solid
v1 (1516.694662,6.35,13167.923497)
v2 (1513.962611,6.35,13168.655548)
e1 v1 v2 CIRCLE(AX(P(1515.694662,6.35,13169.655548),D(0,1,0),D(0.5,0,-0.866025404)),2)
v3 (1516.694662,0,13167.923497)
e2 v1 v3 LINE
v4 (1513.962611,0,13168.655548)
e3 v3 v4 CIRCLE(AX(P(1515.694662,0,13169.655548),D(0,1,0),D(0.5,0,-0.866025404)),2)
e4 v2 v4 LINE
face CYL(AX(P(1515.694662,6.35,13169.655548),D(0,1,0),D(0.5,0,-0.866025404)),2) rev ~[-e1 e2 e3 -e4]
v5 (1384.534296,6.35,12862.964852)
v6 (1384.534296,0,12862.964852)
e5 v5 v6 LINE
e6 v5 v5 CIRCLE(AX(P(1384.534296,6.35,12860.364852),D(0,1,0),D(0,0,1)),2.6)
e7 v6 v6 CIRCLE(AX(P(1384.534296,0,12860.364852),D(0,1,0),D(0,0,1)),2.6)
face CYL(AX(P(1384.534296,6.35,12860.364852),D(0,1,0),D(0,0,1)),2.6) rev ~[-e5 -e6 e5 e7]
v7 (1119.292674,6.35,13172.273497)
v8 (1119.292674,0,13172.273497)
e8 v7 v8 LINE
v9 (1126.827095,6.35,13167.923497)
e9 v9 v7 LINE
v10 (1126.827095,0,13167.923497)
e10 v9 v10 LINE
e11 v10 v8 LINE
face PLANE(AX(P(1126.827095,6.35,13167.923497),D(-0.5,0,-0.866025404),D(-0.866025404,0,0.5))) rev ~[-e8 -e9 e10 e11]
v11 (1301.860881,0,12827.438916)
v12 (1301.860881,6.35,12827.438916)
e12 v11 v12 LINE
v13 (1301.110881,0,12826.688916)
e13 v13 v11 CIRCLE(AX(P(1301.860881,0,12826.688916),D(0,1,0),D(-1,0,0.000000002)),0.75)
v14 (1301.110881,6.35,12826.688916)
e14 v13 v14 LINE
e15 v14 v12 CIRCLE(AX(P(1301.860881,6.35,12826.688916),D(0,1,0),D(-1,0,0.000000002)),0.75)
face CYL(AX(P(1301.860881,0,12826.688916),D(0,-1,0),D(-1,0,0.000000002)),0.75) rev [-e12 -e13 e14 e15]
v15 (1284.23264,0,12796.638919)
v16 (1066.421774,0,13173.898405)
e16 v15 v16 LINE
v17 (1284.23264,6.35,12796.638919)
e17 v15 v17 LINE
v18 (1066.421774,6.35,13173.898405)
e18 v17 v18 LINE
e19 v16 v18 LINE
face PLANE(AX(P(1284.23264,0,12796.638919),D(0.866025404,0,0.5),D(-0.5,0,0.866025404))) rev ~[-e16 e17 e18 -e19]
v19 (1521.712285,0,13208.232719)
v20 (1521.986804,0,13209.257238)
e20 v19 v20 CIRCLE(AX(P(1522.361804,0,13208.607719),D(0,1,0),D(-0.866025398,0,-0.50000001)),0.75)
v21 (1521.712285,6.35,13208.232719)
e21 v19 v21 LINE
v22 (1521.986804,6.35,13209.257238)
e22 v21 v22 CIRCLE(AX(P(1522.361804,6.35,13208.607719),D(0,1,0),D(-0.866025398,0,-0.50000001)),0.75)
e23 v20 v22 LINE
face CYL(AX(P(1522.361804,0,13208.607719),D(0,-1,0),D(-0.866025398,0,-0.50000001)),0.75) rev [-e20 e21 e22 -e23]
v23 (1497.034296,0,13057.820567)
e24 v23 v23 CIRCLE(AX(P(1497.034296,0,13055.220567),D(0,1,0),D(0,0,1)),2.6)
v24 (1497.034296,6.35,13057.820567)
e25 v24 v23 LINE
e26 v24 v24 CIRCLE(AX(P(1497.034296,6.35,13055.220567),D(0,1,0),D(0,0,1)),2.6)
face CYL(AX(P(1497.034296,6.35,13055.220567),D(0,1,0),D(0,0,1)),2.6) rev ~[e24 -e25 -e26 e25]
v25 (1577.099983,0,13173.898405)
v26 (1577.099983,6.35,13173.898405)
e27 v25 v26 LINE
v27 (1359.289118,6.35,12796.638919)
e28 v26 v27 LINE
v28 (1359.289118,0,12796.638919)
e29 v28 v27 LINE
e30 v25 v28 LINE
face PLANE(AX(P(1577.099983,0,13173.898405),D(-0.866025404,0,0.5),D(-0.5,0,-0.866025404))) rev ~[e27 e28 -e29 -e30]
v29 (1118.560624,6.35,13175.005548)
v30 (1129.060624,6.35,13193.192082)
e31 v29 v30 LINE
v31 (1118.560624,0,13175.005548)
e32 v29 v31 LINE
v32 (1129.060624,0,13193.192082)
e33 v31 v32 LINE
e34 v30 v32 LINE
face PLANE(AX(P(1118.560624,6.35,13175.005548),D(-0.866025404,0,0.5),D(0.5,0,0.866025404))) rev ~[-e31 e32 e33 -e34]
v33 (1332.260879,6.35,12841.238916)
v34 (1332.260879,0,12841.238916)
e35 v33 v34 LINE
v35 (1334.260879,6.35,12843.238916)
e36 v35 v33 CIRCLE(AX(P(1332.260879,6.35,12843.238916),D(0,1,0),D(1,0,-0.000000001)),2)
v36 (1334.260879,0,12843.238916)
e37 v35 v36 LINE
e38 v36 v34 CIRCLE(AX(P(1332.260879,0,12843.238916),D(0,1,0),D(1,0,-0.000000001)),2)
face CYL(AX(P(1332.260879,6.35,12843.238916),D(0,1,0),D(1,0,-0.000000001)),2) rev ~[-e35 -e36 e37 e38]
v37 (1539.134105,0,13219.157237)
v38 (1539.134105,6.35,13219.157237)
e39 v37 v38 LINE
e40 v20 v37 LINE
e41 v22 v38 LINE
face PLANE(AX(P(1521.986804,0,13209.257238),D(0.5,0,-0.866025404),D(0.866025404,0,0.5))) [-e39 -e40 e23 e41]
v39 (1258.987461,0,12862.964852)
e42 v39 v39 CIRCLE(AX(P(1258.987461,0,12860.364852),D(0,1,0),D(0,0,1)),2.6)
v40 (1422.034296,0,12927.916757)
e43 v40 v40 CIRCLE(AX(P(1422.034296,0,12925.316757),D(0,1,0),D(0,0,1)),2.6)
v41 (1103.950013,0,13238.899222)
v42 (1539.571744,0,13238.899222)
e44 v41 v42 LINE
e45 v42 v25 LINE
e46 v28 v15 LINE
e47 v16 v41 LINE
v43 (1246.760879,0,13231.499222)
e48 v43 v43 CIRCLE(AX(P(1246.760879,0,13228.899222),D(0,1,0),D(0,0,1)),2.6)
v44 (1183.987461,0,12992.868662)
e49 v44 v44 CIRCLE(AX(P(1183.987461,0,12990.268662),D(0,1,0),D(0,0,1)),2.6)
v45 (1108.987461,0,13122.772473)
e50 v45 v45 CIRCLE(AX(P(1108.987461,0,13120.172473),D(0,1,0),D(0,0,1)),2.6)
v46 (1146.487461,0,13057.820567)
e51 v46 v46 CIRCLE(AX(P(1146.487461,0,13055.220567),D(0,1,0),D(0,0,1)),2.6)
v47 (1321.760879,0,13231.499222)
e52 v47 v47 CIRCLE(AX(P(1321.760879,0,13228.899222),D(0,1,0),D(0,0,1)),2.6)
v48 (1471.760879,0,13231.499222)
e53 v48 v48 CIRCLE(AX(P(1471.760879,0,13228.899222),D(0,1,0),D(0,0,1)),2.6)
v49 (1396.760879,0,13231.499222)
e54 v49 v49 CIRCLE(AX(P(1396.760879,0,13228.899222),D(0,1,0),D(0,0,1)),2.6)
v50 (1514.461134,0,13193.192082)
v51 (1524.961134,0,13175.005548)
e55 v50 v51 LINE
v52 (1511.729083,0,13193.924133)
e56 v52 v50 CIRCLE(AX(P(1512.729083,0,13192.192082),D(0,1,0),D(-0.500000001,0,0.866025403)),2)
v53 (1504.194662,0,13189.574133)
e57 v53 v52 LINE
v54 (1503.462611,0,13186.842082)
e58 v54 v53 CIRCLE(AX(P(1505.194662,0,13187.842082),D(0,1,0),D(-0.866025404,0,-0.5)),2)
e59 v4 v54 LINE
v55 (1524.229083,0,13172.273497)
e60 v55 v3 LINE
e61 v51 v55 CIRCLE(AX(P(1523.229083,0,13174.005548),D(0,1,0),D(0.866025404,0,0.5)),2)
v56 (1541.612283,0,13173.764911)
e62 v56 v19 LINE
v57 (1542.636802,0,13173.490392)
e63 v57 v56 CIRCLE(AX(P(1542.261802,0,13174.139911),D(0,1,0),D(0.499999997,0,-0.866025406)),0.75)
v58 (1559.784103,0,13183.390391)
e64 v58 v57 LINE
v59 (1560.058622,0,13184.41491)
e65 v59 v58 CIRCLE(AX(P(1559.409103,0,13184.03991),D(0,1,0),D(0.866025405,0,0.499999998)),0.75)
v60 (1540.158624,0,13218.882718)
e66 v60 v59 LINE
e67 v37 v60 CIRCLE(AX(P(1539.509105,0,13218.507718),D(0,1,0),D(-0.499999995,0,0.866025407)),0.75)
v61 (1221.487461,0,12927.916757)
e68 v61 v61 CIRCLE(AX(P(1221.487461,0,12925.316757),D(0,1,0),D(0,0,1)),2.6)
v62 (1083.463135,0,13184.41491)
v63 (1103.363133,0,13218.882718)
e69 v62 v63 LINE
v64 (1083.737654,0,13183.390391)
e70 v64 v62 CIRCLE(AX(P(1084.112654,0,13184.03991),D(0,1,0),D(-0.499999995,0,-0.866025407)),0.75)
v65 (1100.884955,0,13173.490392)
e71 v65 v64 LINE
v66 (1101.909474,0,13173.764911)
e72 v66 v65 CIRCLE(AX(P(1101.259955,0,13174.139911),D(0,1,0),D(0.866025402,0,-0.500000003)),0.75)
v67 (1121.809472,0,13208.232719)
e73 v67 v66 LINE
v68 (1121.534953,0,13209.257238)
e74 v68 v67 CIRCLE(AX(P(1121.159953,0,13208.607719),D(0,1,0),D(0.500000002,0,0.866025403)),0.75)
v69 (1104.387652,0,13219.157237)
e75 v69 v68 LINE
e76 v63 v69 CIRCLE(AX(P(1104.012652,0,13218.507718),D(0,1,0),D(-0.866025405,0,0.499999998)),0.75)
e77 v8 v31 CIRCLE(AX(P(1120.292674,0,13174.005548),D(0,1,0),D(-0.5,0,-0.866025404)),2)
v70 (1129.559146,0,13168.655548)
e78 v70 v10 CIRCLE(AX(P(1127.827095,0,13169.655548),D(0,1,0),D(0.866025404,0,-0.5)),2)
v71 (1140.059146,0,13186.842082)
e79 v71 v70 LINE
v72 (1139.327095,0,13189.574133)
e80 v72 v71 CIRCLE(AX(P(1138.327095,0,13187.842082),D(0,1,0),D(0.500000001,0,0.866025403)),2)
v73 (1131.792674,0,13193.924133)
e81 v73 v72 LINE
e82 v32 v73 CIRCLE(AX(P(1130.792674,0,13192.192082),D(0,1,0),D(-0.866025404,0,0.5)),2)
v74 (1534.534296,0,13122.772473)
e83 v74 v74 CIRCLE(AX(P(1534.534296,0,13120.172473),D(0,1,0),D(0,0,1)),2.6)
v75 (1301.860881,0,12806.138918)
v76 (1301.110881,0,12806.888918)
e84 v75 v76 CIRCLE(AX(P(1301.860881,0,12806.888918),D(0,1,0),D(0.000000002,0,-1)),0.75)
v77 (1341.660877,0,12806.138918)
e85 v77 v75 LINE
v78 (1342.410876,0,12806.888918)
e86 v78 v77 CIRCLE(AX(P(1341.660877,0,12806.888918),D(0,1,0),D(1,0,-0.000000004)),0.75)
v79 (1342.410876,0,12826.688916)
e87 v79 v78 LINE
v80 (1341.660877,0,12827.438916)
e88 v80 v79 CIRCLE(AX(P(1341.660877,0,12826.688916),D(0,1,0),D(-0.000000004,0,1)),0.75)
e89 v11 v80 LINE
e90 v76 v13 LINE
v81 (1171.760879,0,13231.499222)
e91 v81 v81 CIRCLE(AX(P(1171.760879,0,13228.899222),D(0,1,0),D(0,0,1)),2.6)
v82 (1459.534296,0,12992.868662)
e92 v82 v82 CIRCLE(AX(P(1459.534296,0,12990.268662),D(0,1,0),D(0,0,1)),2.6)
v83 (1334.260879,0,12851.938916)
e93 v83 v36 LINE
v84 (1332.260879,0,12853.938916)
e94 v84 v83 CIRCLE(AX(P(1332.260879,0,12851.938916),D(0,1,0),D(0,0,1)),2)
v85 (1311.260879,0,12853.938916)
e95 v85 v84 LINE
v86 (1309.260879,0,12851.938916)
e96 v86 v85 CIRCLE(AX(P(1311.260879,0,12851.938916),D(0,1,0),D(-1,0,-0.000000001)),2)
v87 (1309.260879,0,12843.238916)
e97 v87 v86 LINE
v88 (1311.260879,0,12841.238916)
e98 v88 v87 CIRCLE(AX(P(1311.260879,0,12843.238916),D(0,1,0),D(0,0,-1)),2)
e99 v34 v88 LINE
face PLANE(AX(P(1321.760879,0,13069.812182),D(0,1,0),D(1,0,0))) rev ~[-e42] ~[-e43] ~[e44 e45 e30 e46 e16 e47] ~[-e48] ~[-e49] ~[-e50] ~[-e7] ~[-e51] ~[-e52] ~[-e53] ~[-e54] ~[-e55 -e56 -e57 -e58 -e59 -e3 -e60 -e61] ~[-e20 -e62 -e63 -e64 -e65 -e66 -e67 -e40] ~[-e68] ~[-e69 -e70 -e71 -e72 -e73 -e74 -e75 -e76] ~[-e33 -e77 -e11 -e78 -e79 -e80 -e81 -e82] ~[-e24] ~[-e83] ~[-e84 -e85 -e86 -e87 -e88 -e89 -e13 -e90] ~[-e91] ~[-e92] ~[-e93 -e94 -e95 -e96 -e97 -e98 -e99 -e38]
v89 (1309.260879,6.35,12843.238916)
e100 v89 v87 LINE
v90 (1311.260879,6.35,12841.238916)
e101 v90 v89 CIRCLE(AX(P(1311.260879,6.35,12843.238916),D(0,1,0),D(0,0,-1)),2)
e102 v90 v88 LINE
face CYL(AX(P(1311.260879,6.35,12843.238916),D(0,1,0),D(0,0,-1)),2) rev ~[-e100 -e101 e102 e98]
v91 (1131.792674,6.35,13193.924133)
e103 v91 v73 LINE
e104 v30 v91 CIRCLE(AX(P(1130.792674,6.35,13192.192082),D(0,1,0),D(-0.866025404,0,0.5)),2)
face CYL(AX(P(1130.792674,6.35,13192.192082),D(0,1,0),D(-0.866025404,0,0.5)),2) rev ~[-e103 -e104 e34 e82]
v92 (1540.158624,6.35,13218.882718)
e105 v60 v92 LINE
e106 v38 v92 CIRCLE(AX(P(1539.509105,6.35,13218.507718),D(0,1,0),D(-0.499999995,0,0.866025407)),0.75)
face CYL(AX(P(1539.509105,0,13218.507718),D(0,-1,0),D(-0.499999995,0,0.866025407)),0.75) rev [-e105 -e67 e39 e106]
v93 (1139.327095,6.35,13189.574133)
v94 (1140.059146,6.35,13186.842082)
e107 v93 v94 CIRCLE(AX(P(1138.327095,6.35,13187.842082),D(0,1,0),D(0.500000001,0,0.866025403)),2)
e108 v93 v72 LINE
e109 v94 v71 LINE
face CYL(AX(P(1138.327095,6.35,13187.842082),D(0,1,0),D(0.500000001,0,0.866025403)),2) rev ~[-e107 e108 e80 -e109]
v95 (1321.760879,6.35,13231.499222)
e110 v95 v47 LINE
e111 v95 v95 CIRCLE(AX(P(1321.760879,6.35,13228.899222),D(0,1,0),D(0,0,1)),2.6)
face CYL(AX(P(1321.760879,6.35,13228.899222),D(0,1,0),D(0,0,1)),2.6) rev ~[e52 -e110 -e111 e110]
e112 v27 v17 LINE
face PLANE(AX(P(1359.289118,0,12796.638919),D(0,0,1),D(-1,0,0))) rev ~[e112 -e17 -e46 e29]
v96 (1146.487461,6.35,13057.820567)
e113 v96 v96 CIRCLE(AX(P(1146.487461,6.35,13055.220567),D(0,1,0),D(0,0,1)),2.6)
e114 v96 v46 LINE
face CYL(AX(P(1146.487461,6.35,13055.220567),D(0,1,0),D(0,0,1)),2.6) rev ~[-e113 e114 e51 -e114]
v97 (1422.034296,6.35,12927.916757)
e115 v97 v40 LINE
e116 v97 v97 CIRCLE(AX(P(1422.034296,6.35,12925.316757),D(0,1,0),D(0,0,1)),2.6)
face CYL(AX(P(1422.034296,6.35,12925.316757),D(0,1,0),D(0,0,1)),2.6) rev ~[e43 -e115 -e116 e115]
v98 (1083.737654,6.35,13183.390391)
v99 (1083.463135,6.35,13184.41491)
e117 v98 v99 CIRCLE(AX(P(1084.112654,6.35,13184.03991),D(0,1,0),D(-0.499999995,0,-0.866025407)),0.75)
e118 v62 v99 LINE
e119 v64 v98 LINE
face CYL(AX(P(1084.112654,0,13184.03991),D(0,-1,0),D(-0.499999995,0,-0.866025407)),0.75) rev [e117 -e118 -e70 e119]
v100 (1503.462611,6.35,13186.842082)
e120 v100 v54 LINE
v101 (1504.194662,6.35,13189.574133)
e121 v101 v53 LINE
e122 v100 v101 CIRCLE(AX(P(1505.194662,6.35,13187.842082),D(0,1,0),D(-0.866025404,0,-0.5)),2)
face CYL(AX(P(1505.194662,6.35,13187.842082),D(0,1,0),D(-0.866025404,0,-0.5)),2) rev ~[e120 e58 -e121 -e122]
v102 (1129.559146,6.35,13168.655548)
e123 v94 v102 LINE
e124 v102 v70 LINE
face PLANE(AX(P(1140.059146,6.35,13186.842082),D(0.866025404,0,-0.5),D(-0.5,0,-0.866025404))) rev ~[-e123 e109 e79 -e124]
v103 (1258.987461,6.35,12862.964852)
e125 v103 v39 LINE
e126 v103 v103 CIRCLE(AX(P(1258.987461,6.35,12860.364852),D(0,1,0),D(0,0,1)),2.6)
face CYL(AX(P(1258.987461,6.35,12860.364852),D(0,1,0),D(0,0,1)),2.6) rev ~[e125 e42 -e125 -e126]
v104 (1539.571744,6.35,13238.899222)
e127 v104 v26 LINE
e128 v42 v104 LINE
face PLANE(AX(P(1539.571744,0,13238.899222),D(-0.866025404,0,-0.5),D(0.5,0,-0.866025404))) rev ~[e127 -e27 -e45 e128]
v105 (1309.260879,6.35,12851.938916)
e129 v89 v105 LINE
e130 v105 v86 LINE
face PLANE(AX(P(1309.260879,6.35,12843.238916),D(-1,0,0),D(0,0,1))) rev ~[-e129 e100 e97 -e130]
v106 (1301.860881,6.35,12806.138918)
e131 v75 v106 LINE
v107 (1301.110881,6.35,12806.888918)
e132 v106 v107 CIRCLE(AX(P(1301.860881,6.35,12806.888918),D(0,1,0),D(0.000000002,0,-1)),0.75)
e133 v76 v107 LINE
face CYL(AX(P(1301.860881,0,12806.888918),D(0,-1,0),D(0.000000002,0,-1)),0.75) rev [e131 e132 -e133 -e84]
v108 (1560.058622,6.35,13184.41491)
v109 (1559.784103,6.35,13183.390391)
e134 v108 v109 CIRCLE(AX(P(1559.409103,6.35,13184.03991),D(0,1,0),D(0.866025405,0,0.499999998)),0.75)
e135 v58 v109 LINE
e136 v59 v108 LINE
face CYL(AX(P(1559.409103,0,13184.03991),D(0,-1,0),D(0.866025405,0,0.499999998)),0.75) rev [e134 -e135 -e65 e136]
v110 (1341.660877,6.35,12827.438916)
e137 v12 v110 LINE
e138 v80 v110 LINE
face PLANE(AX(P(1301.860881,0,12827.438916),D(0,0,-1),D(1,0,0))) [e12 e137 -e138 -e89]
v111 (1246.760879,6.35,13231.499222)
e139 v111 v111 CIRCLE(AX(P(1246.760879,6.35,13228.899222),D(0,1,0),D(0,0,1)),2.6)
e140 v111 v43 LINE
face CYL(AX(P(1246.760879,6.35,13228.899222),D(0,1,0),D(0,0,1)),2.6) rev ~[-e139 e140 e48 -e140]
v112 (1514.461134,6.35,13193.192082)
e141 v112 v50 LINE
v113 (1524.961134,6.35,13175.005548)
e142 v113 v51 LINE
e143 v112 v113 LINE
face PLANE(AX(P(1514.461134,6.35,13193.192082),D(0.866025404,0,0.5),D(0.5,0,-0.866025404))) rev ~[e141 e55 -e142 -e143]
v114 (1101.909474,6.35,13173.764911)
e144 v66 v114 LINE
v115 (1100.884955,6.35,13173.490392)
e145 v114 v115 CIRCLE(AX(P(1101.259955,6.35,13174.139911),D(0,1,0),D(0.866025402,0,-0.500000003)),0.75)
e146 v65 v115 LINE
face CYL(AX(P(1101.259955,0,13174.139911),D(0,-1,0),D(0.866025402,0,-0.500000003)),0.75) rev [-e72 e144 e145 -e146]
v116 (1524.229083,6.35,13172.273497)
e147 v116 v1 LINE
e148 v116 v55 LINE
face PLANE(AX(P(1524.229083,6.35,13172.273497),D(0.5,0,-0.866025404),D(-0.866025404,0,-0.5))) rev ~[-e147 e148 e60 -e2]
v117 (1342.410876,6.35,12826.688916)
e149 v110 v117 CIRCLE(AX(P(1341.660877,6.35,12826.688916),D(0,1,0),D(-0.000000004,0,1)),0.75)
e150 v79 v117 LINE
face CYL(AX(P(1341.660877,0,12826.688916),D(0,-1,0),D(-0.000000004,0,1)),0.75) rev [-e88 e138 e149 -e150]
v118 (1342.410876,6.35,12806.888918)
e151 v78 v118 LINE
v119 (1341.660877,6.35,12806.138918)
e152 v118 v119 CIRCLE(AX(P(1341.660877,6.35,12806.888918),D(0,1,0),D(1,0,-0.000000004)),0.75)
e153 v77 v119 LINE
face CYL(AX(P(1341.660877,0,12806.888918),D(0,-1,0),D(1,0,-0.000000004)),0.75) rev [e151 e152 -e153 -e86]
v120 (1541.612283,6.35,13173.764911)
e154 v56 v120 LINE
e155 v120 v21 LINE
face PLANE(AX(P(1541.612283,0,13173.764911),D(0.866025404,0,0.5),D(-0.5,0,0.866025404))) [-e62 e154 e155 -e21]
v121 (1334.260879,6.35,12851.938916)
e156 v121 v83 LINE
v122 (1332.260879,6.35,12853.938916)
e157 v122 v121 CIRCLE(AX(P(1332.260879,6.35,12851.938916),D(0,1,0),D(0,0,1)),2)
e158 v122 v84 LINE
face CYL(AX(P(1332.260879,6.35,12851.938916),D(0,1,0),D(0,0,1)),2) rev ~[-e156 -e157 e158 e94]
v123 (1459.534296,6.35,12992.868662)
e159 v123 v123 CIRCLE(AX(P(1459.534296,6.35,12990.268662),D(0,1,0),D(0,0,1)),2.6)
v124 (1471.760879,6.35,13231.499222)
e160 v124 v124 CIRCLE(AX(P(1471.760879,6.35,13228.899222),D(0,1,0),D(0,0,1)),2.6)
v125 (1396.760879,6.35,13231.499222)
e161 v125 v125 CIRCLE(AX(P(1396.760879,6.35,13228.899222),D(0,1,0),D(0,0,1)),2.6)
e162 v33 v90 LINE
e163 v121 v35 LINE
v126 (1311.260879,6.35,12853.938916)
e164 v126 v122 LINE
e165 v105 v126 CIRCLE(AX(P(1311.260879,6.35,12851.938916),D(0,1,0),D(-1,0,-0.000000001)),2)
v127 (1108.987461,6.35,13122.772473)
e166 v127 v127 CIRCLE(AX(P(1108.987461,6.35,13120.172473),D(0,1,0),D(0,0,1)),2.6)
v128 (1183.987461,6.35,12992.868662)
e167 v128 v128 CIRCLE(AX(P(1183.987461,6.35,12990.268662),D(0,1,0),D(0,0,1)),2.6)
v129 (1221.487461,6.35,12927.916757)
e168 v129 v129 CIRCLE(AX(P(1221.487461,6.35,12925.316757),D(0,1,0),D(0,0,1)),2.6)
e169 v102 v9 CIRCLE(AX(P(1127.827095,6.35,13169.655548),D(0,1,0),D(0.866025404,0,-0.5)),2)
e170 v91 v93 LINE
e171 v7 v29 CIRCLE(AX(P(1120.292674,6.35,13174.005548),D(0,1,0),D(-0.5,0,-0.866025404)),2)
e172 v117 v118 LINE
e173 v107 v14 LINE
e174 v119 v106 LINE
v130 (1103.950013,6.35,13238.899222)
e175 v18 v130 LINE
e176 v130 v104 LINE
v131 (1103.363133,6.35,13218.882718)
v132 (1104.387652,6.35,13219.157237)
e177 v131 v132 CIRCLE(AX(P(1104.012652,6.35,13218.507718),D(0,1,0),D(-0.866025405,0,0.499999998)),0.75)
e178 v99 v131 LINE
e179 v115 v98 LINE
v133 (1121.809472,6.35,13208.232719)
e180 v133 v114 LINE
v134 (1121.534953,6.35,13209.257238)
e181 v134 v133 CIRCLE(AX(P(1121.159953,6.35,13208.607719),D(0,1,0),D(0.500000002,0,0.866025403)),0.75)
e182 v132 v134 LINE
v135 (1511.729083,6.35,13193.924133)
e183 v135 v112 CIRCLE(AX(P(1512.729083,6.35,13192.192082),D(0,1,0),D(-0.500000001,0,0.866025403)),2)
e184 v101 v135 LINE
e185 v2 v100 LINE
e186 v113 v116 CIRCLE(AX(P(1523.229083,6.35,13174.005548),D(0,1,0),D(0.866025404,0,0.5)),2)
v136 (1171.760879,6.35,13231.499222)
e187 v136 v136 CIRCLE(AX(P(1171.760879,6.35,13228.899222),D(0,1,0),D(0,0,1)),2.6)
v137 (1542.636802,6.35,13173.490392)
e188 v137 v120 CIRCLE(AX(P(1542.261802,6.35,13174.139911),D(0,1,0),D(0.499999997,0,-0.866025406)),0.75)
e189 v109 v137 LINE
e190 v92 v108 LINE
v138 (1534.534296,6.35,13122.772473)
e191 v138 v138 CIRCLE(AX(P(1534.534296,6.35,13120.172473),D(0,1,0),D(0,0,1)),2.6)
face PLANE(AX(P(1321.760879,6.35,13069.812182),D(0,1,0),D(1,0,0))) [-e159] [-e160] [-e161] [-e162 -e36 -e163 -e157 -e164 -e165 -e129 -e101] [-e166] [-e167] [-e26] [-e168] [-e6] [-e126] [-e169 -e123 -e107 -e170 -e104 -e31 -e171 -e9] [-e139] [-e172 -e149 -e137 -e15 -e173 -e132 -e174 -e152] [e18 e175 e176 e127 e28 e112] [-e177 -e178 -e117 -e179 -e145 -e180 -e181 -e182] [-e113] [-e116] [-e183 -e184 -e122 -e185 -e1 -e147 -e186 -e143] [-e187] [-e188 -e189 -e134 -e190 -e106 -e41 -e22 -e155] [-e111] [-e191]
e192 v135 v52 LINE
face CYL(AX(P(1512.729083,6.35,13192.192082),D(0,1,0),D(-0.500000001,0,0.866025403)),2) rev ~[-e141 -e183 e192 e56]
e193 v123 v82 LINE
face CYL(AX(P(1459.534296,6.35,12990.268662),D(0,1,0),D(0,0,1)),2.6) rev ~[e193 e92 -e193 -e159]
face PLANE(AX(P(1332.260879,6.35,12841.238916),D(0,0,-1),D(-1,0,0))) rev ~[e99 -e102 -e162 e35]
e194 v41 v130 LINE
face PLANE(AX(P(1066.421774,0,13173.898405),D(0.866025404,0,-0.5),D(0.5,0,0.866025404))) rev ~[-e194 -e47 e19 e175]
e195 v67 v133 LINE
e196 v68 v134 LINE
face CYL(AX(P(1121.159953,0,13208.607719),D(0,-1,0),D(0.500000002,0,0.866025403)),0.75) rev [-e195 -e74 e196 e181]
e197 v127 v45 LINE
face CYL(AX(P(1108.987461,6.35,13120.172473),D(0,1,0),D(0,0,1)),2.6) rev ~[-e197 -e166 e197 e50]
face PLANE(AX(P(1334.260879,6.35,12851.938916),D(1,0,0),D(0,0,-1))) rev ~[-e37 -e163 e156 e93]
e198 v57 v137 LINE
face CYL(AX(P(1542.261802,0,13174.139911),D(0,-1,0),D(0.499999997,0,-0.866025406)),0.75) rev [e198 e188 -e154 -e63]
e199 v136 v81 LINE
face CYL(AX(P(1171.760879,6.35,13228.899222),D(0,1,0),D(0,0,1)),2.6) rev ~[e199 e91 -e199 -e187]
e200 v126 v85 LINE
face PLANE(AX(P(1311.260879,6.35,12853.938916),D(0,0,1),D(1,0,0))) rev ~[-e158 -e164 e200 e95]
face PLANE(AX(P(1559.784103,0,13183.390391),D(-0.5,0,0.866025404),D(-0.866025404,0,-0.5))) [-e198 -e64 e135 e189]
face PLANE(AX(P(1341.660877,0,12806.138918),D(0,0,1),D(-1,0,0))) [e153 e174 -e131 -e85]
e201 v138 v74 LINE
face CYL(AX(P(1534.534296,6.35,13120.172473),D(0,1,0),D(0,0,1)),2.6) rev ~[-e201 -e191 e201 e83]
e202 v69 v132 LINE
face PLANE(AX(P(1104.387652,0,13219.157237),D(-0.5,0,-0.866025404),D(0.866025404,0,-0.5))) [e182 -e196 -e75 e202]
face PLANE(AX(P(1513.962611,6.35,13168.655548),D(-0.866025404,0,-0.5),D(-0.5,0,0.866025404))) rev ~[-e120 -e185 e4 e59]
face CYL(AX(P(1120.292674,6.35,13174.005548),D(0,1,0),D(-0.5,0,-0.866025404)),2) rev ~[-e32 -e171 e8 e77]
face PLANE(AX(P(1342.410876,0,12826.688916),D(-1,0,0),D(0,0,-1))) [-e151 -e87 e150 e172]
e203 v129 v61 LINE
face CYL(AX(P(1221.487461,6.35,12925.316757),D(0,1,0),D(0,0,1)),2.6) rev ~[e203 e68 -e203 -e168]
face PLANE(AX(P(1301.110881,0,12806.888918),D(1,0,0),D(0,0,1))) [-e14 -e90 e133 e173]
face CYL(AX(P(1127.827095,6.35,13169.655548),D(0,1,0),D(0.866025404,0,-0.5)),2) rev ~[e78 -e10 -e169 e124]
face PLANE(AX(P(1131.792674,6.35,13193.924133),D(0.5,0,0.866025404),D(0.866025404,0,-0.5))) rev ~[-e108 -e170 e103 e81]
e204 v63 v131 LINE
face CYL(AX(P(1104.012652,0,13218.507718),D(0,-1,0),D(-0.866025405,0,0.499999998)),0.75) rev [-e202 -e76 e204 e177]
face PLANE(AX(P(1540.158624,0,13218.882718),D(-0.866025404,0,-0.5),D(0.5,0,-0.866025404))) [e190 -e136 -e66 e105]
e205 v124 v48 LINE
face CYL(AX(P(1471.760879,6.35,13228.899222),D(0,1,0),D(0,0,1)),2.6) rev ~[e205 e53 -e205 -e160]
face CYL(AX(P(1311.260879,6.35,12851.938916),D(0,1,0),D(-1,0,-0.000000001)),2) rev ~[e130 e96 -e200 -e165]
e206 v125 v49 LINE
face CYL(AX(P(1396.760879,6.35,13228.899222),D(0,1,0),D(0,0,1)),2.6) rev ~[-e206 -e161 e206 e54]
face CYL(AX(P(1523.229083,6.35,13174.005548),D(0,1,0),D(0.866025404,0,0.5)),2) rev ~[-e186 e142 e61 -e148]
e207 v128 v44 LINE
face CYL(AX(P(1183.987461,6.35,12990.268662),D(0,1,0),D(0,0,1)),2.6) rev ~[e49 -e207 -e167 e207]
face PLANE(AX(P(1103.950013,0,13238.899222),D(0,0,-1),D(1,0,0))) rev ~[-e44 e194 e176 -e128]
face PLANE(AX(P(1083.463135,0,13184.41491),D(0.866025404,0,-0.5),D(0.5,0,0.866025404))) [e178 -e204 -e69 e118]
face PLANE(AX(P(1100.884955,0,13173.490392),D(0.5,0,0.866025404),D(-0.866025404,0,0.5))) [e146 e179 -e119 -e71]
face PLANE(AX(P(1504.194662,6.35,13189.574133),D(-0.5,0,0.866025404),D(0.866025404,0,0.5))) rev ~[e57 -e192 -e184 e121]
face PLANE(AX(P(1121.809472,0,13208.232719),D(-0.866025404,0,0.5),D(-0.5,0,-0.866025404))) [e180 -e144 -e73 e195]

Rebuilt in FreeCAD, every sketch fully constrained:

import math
import FreeCAD as App
import Part
import Sketcher
from FreeCAD import Vector
Q = App.Units.Quantity


def add_polygon(sketch, points):
    """Adds a closed chain of lines whose ends are joined by coincident constraints."""
    first, n = sketch.GeometryCount, len(points)
    for a, b in zip(points, points[1:] + points[:1]):
        sketch.addGeometry(Part.LineSegment(App.Vector(*a, 0), App.Vector(*b, 0)), False)
    for i in range(n):
        sketch.addConstraint(Sketcher.Constraint("Coincident", first + i, 2, first + (i + 1) % n, 1))

doc = App.newDocument("Part")
body = doc.addObject("PartDesign::Body", "Body")

sketch1 = body.newObject("Sketcher::SketchObject", "Sketch")
sketch1.AttachmentSupport = (doc.getObject("XZ_Plane"), [""])
sketch1.MapMode = "FlatFace"
add_polygon(sketch1, [(1539.6, 13238.9), (1577.1, 13173.9), (1359.3, 12796.6), (1284.2, 12796.6), (1066.4, 13173.9), (1104, 13238.9)])
sketch1.addGeometry(Part.ArcOfCircle(Part.Circle(Vector(1084.1, 13184, 0), Vector(0, 0, 1), 0.7), math.radians(150), math.radians(240)), False)
sketch1.addGeometry(Part.LineSegment(Vector(1083.7, 13183.4, 0), Vector(1100.9, 13173.5, 0)), False)
sketch1.addGeometry(Part.ArcOfCircle(Part.Circle(Vector(1101.3, 13174.1, 0), Vector(0, 0, 1), 0.7), math.radians(-120), math.radians(-30)), False)
sketch1.addGeometry(Part.LineSegment(Vector(1101.9, 13173.8, 0), Vector(1121.8, 13208.2, 0)), False)
sketch1.addGeometry(Part.ArcOfCircle(Part.Circle(Vector(1121.2, 13208.6, 0), Vector(0, 0, 1), 0.7), math.radians(-30), math.radians(60)), False)
sketch1.addGeometry(Part.LineSegment(Vector(1121.5, 13209.3, 0), Vector(1104.4, 13219.2, 0)), False)
sketch1.addGeometry(Part.ArcOfCircle(Part.Circle(Vector(1104, 13218.5, 0), Vector(0, 0, 1), 0.7), math.radians(60), math.radians(150)), False)
sketch1.addGeometry(Part.LineSegment(Vector(1103.4, 13218.9, 0), Vector(1083.5, 13184.4, 0)), False)
sketch1.addGeometry(Part.ArcOfCircle(Part.Circle(Vector(1522.4, 13208.6, 0), Vector(0, 0, 1), 0.7), math.radians(120), math.radians(210)), False)
sketch1.addGeometry(Part.LineSegment(Vector(1521.7, 13208.2, 0), Vector(1541.6, 13173.8, 0)), False)
sketch1.addGeometry(Part.ArcOfCircle(Part.Circle(Vector(1542.3, 13174.1, 0), Vector(0, 0, 1), 0.7), math.radians(-150), math.radians(-60)), False)
sketch1.addGeometry(Part.LineSegment(Vector(1542.6, 13173.5, 0), Vector(1559.8, 13183.4, 0)), False)
sketch1.addGeometry(Part.ArcOfCircle(Part.Circle(Vector(1559.4, 13184, 0), Vector(0, 0, 1), 0.7), math.radians(-60), math.radians(30)), False)
sketch1.addGeometry(Part.LineSegment(Vector(1560.1, 13184.4, 0), Vector(1540.2, 13218.9, 0)), False)
sketch1.addGeometry(Part.ArcOfCircle(Part.Circle(Vector(1539.5, 13218.5, 0), Vector(0, 0, 1), 0.7), math.radians(30), math.radians(120)), False)
sketch1.addGeometry(Part.LineSegment(Vector(1539.1, 13219.2, 0), Vector(1522, 13209.3, 0)), False)
sketch1.addGeometry(Part.ArcOfCircle(Part.Circle(Vector(1301.9, 12826.7, 0), Vector(0, 0, 1), 0.7), math.radians(90), math.radians(180)), False)
sketch1.addGeometry(Part.LineSegment(Vector(1301.1, 12826.7, 0), Vector(1301.1, 12806.9, 0)), False)
sketch1.addGeometry(Part.ArcOfCircle(Part.Circle(Vector(1301.9, 12806.9, 0), Vector(0, 0, 1), 0.7), math.radians(180), math.radians(270)), False)
sketch1.addGeometry(Part.LineSegment(Vector(1301.9, 12806.1, 0), Vector(1341.7, 12806.1, 0)), False)
sketch1.addGeometry(Part.ArcOfCircle(Part.Circle(Vector(1341.7, 12806.9, 0), Vector(0, 0, 1), 0.7), math.radians(-90), math.radians(0)), False)
sketch1.addGeometry(Part.LineSegment(Vector(1342.4, 12806.9, 0), Vector(1342.4, 12826.7, 0)), False)
sketch1.addGeometry(Part.ArcOfCircle(Part.Circle(Vector(1341.7, 12826.7, 0), Vector(0, 0, 1), 0.7), math.radians(0), math.radians(90)), False)
sketch1.addGeometry(Part.LineSegment(Vector(1341.7, 12827.4, 0), Vector(1301.9, 12827.4, 0)), False)
sketch1.addConstraint(Sketcher.Constraint("Tangent", 6, 2, 7, 1))
sketch1.addConstraint(Sketcher.Constraint("Tangent", 7, 2, 8, 1))
sketch1.addConstraint(Sketcher.Constraint("Tangent", 8, 2, 9, 1))
sketch1.addConstraint(Sketcher.Constraint("Tangent", 9, 2, 10, 1))
sketch1.addConstraint(Sketcher.Constraint("Tangent", 10, 2, 11, 1))
sketch1.addConstraint(Sketcher.Constraint("Tangent", 11, 2, 12, 1))
sketch1.addConstraint(Sketcher.Constraint("Tangent", 12, 2, 13, 1))
sketch1.addConstraint(Sketcher.Constraint("Tangent", 13, 2, 6, 1))
sketch1.addConstraint(Sketcher.Constraint("Tangent", 14, 2, 15, 1))
sketch1.addConstraint(Sketcher.Constraint("Tangent", 15, 2, 16, 1))
sketch1.addConstraint(Sketcher.Constraint("Tangent", 16, 2, 17, 1))
sketch1.addConstraint(Sketcher.Constraint("Tangent", 17, 2, 18, 1))
sketch1.addConstraint(Sketcher.Constraint("Tangent", 18, 2, 19, 1))
sketch1.addConstraint(Sketcher.Constraint("Tangent", 19, 2, 20, 1))
sketch1.addConstraint(Sketcher.Constraint("Tangent", 20, 2, 21, 1))
sketch1.addConstraint(Sketcher.Constraint("Tangent", 21, 2, 14, 1))
sketch1.addConstraint(Sketcher.Constraint("Tangent", 22, 2, 23, 1))
sketch1.addConstraint(Sketcher.Constraint("Tangent", 23, 2, 24, 1))
sketch1.addConstraint(Sketcher.Constraint("Tangent", 24, 2, 25, 1))
sketch1.addConstraint(Sketcher.Constraint("Tangent", 25, 2, 26, 1))
sketch1.addConstraint(Sketcher.Constraint("Tangent", 26, 2, 27, 1))
sketch1.addConstraint(Sketcher.Constraint("Tangent", 27, 2, 28, 1))
sketch1.addConstraint(Sketcher.Constraint("Tangent", 28, 2, 29, 1))
sketch1.addConstraint(Sketcher.Constraint("Tangent", 29, 2, 22, 1))
sketch1.addConstraint(Sketcher.Constraint("Horizontal", 2))
sketch1.addConstraint(Sketcher.Constraint("Horizontal", 5))
sketch1.addConstraint(Sketcher.Constraint("Vertical", 23))
sketch1.addConstraint(Sketcher.Constraint("Horizontal", 25))
sketch1.addConstraint(Sketcher.Constraint("Vertical", 27))
sketch1.addConstraint(Sketcher.Constraint("Horizontal", 29))
sketch1.addConstraint(Sketcher.Constraint("Equal", 6, 8))
sketch1.addConstraint(Sketcher.Constraint("Equal", 8, 10))
sketch1.addConstraint(Sketcher.Constraint("Equal", 10, 12))
sketch1.addConstraint(Sketcher.Constraint("Equal", 12, 14))
sketch1.addConstraint(Sketcher.Constraint("Equal", 14, 16))
sketch1.addConstraint(Sketcher.Constraint("Equal", 16, 18))
sketch1.addConstraint(Sketcher.Constraint("Equal", 18, 20))
sketch1.addConstraint(Sketcher.Constraint("Equal", 20, 22))
sketch1.addConstraint(Sketcher.Constraint("Equal", 22, 24))
sketch1.addConstraint(Sketcher.Constraint("Equal", 24, 26))
sketch1.addConstraint(Sketcher.Constraint("Equal", 26, 28))
sketch1.addConstraint(Sketcher.Constraint("Parallel", 0, 3))
sketch1.addConstraint(Sketcher.Constraint("Parallel", 1, 4))
sketch1.addConstraint(Sketcher.Constraint("Perpendicular", 4, 7))
sketch1.addConstraint(Sketcher.Constraint("Perpendicular", 7, 9))
sketch1.addConstraint(Sketcher.Constraint("Perpendicular", 9, 11))
sketch1.addConstraint(Sketcher.Constraint("Perpendicular", 11, 13))
sketch1.addConstraint(Sketcher.Constraint("Parallel", 3, 15))
sketch1.addConstraint(Sketcher.Constraint("Perpendicular", 15, 17))
sketch1.addConstraint(Sketcher.Constraint("Perpendicular", 17, 19))
sketch1.addConstraint(Sketcher.Constraint("Perpendicular", 19, 21))
sketch1.addConstraint(Sketcher.Constraint("Horizontal", 10, 3, 14, 3))
sketch1.addConstraint(Sketcher.Constraint("Horizontal", 8, 3, 16, 3))
sketch1.addConstraint(Sketcher.Constraint("Horizontal", 6, 3, 18, 3))
sketch1.addConstraint(Sketcher.Constraint("Horizontal", 0, 2, 3, 2))
sketch1.addConstraint(Sketcher.Constraint("Equal", 1, 3))
sketch1.addConstraint(Sketcher.Constraint("Angle", 0, Q("-60 deg")))
sketch1.addConstraint(Sketcher.Constraint("Radius", 6, Q("0.75 mm")))
sketch1.addConstraint(Sketcher.Constraint("DistanceY", 8, 3, 6, 3, Q("9.899999 mm")))
sketch1.addConstraint(Sketcher.Constraint("DistanceY", 2, 2, 24, 2, Q("9.499999 mm")))
sketch1.addConstraint(Sketcher.Constraint("DistanceX", 2, 2, 2, 1, Q("75.056478 mm")))
sketch1.addConstraint(Sketcher.Constraint("DistanceX", 5, 1, 5, 2, Q("435.621731 mm")))
sketch1.addConstraint(Sketcher.Constraint("DistanceX", 6, 3, 10, 3, Q("37.047299 mm")))
sketch1.addConstraint(Sketcher.Constraint("DistanceY", 22, 3, 12, 3, Q("391.818802 mm")))
sketch1.addConstraint(Sketcher.Constraint("DistanceY", 24, 3, 10, 3, Q("401.7188 mm")))
sketch1.addConstraint(Sketcher.Constraint("DistanceX", 3, 2, 8, 2, Q("35.4877 mm")))
sketch1.addConstraint(Sketcher.Constraint("DistanceX", 15, 2, 0, 2, Q("35.4877 mm")))
sketch1.addConstraint(Sketcher.Constraint("Distance", 0, Q("75.056478 mm")))
sketch1.addConstraint(Sketcher.Constraint("DistanceX", 25, 1, 25, 2, Q("39.799996 mm")))
sketch1.addConstraint(Sketcher.Constraint("DistanceY", -1, 1, 6, 3, Q("13184.03991 mm")))
sketch1.addConstraint(Sketcher.Constraint("DistanceX", -1, 1, 12, 3, Q("1104.012652 mm")))
sketch1.addConstraint(Sketcher.Constraint("DistanceX", -1, 1, 22, 3, Q("1301.860881 mm")))
pad1 = body.newObject("PartDesign::Pad", "Pad")
pad1.Profile = sketch1
pad1.Length = 6.35
pad1.Reversed = True

sketch2 = body.newObject("Sketcher::SketchObject", "Sketch001")
sketch2.AttachmentSupport = (doc.getObject("XZ_Plane"), [""])
sketch2.MapMode = "FlatFace"
sketch2.AttachmentOffset = App.Placement(Vector(0, 0, -6.35), App.Rotation())
sketch2.addGeometry(Part.Circle(Vector(1184, 12990.3, 0), Vector(0, 0, 1), 2.6), False)
sketch2.addGeometry(Part.Circle(Vector(1146.5, 13055.2, 0), Vector(0, 0, 1), 2.6), False)
sketch2.addGeometry(Part.Circle(Vector(1109, 13120.2, 0), Vector(0, 0, 1), 2.6), False)
sketch2.addGeometry(Part.Circle(Vector(1221.5, 12925.3, 0), Vector(0, 0, 1), 2.6), False)
sketch2.addGeometry(Part.Circle(Vector(1259, 12860.4, 0), Vector(0, 0, 1), 2.6), False)
sketch2.addGeometry(Part.Circle(Vector(1459.5, 12990.3, 0), Vector(0, 0, 1), 2.6), False)
sketch2.addGeometry(Part.Circle(Vector(1497, 13055.2, 0), Vector(0, 0, 1), 2.6), False)
sketch2.addGeometry(Part.Circle(Vector(1534.5, 13120.2, 0), Vector(0, 0, 1), 2.6), False)
sketch2.addGeometry(Part.Circle(Vector(1422, 12925.3, 0), Vector(0, 0, 1), 2.6), False)
sketch2.addGeometry(Part.Circle(Vector(1384.5, 12860.4, 0), Vector(0, 0, 1), 2.6), False)
sketch2.addGeometry(Part.Circle(Vector(1321.8, 13228.9, 0), Vector(0, 0, 1), 2.6), False)
sketch2.addGeometry(Part.Circle(Vector(1246.8, 13228.9, 0), Vector(0, 0, 1), 2.6), False)
sketch2.addGeometry(Part.Circle(Vector(1171.8, 13228.9, 0), Vector(0, 0, 1), 2.6), False)
sketch2.addGeometry(Part.Circle(Vector(1396.8, 13228.9, 0), Vector(0, 0, 1), 2.6), False)
sketch2.addGeometry(Part.Circle(Vector(1471.8, 13228.9, 0), Vector(0, 0, 1), 2.6), False)
sketch2.addConstraint(Sketcher.Constraint("Equal", 0, 1))
sketch2.addConstraint(Sketcher.Constraint("Equal", 1, 2))
sketch2.addConstraint(Sketcher.Constraint("Equal", 2, 3))
sketch2.addConstraint(Sketcher.Constraint("Equal", 3, 4))
sketch2.addConstraint(Sketcher.Constraint("Equal", 4, 5))
sketch2.addConstraint(Sketcher.Constraint("Equal", 5, 6))
sketch2.addConstraint(Sketcher.Constraint("Equal", 6, 7))
sketch2.addConstraint(Sketcher.Constraint("Equal", 7, 8))
sketch2.addConstraint(Sketcher.Constraint("Equal", 8, 9))
sketch2.addConstraint(Sketcher.Constraint("Equal", 9, 10))
sketch2.addConstraint(Sketcher.Constraint("Equal", 10, 11))
sketch2.addConstraint(Sketcher.Constraint("Equal", 11, 12))
sketch2.addConstraint(Sketcher.Constraint("Equal", 12, 13))
sketch2.addConstraint(Sketcher.Constraint("Equal", 13, 14))
sketch2.addConstraint(Sketcher.Constraint("Horizontal", 0, 3, 5, 3))
sketch2.addConstraint(Sketcher.Constraint("Horizontal", 1, 3, 6, 3))
sketch2.addConstraint(Sketcher.Constraint("Horizontal", 2, 3, 7, 3))
sketch2.addConstraint(Sketcher.Constraint("Horizontal", 3, 3, 8, 3))
sketch2.addConstraint(Sketcher.Constraint("Horizontal", 4, 3, 9, 3))
sketch2.addConstraint(Sketcher.Constraint("Horizontal", 10, 3, 11, 3))
sketch2.addConstraint(Sketcher.Constraint("Horizontal", 11, 3, 12, 3))
sketch2.addConstraint(Sketcher.Constraint("Horizontal", 12, 3, 13, 3))
sketch2.addConstraint(Sketcher.Constraint("Horizontal", 13, 3, 14, 3))
sketch2.addConstraint(Sketcher.Constraint("Diameter", 0, Q("5.2 mm")))
sketch2.addConstraint(Sketcher.Constraint("DistanceX", 2, 3, 0, 3, Q("75 mm")))
sketch2.addConstraint(Sketcher.Constraint("DistanceX", 1, 3, 3, 3, Q("75 mm")))
sketch2.addConstraint(Sketcher.Constraint("DistanceX", 0, 3, 4, 3, Q("75 mm")))
sketch2.addConstraint(Sketcher.Constraint("DistanceX", 5, 3, 7, 3, Q("75 mm")))
sketch2.addConstraint(Sketcher.Constraint("DistanceX", 8, 3, 6, 3, Q("75 mm")))
sketch2.addConstraint(Sketcher.Constraint("DistanceX", 9, 3, 5, 3, Q("75 mm")))
sketch2.addConstraint(Sketcher.Constraint("DistanceX", 11, 3, 10, 3, Q("75 mm")))
sketch2.addConstraint(Sketcher.Constraint("DistanceX", 12, 3, 11, 3, Q("75 mm")))
sketch2.addConstraint(Sketcher.Constraint("DistanceX", 10, 3, 13, 3, Q("75 mm")))
sketch2.addConstraint(Sketcher.Constraint("DistanceX", 13, 3, 14, 3, Q("75 mm")))
sketch2.addConstraint(Sketcher.Constraint("DistanceX", 1, 3, 0, 3, Q("37.5 mm")))
sketch2.addConstraint(Sketcher.Constraint("DistanceX", 5, 3, 6, 3, Q("37.5 mm")))
sketch2.addConstraint(Sketcher.Constraint("DistanceX", -1, 1, 0, 3, Q("1183.987461 mm")))
sketch2.addConstraint(Sketcher.Constraint("DistanceY", -1, 1, 4, 3, Q("12860.364852 mm")))
sketch2.addConstraint(Sketcher.Constraint("DistanceX", -1, 1, 10, 3, Q("1321.760879 mm")))
sketch2.addConstraint(Sketcher.Constraint("DistanceY", -1, 1, 10, 3, Q("13228.899222 mm")))
sketch2.addConstraint(Sketcher.Constraint("DistanceY", 0, 3, 2, 3, Q("129.903811 mm")))
sketch2.addConstraint(Sketcher.Constraint("DistanceY", 3, 3, 1, 3, Q("129.903811 mm")))
sketch2.addConstraint(Sketcher.Constraint("DistanceY", 4, 3, 0, 3, Q("129.903811 mm")))
sketch2.addConstraint(Sketcher.Constraint("DistanceY", -1, 1, 1, 3, Q("13055.220567 mm")))
sketch2.addConstraint(Sketcher.Constraint("DistanceX", -1, 1, 5, 3, Q("1459.534296 mm")))
pocket1 = body.newObject("PartDesign::Pocket", "Pocket")
pocket1.Profile = sketch2
pocket1.Length = 10
pocket1.Reversed = True

sketch3 = body.newObject("Sketcher::SketchObject", "Sketch002")
sketch3.AttachmentSupport = (doc.getObject("XZ_Plane"), [""])
sketch3.MapMode = "FlatFace"
sketch3.AttachmentOffset = App.Placement(Vector(0, 0, -6.35), App.Rotation())
sketch3.addGeometry(Part.LineSegment(Vector(1118.6, 13175, 0), Vector(1129.1, 13193.2, 0)), False)
sketch3.addGeometry(Part.ArcOfCircle(Part.Circle(Vector(1130.8, 13192.2, 0), Vector(0, 0, 1), 2), math.radians(60), math.radians(150)), False)
sketch3.addGeometry(Part.LineSegment(Vector(1131.8, 13193.9, 0), Vector(1139.3, 13189.6, 0)), False)
sketch3.addGeometry(Part.ArcOfCircle(Part.Circle(Vector(1138.3, 13187.8, 0), Vector(0, 0, 1), 2), math.radians(-30), math.radians(60)), False)
sketch3.addGeometry(Part.LineSegment(Vector(1140.1, 13186.8, 0), Vector(1129.6, 13168.7, 0)), False)
sketch3.addGeometry(Part.ArcOfCircle(Part.Circle(Vector(1127.8, 13169.7, 0), Vector(0, 0, 1), 2), math.radians(-120), math.radians(-30)), False)
sketch3.addGeometry(Part.LineSegment(Vector(1126.8, 13167.9, 0), Vector(1119.3, 13172.3, 0)), False)
sketch3.addGeometry(Part.ArcOfCircle(Part.Circle(Vector(1120.3, 13174, 0), Vector(0, 0, 1), 2), math.radians(150), math.radians(240)), False)
sketch3.addGeometry(Part.LineSegment(Vector(1332.3, 12841.2, 0), Vector(1311.3, 12841.2, 0)), False)
sketch3.addGeometry(Part.ArcOfCircle(Part.Circle(Vector(1311.3, 12843.2, 0), Vector(0, 0, 1), 2), math.radians(180), math.radians(270)), False)
sketch3.addGeometry(Part.LineSegment(Vector(1309.3, 12843.2, 0), Vector(1309.3, 12851.9, 0)), False)
sketch3.addGeometry(Part.ArcOfCircle(Part.Circle(Vector(1311.3, 12851.9, 0), Vector(0, 0, 1), 2), math.radians(90), math.radians(180)), False)
sketch3.addGeometry(Part.LineSegment(Vector(1311.3, 12853.9, 0), Vector(1332.3, 12853.9, 0)), False)
sketch3.addGeometry(Part.ArcOfCircle(Part.Circle(Vector(1332.3, 12851.9, 0), Vector(0, 0, 1), 2), math.radians(0), math.radians(90)), False)
sketch3.addGeometry(Part.LineSegment(Vector(1334.3, 12851.9, 0), Vector(1334.3, 12843.2, 0)), False)
sketch3.addGeometry(Part.ArcOfCircle(Part.Circle(Vector(1332.3, 12843.2, 0), Vector(0, 0, 1), 2), math.radians(-90), math.radians(0)), False)
sketch3.addGeometry(Part.LineSegment(Vector(1514.5, 13193.2, 0), Vector(1525, 13175, 0)), False)
sketch3.addGeometry(Part.ArcOfCircle(Part.Circle(Vector(1523.2, 13174, 0), Vector(0, 0, 1), 2), math.radians(-60), math.radians(30)), False)
sketch3.addGeometry(Part.LineSegment(Vector(1524.2, 13172.3, 0), Vector(1516.7, 13167.9, 0)), False)
sketch3.addGeometry(Part.ArcOfCircle(Part.Circle(Vector(1515.7, 13169.7, 0), Vector(0, 0, 1), 2), math.radians(-150), math.radians(-60)), False)
sketch3.addGeometry(Part.LineSegment(Vector(1514, 13168.7, 0), Vector(1503.5, 13186.8, 0)), False)
sketch3.addGeometry(Part.ArcOfCircle(Part.Circle(Vector(1505.2, 13187.8, 0), Vector(0, 0, 1), 2), math.radians(120), math.radians(210)), False)
sketch3.addGeometry(Part.LineSegment(Vector(1504.2, 13189.6, 0), Vector(1511.7, 13193.9, 0)), False)
sketch3.addGeometry(Part.ArcOfCircle(Part.Circle(Vector(1512.7, 13192.2, 0), Vector(0, 0, 1), 2), math.radians(30), math.radians(120)), False)
sketch3.addConstraint(Sketcher.Constraint("Tangent", 0, 2, 1, 2))
sketch3.addConstraint(Sketcher.Constraint("Tangent", 1, 1, 2, 1))
sketch3.addConstraint(Sketcher.Constraint("Tangent", 2, 2, 3, 2))
sketch3.addConstraint(Sketcher.Constraint("Tangent", 3, 1, 4, 1))
sketch3.addConstraint(Sketcher.Constraint("Tangent", 4, 2, 5, 2))
sketch3.addConstraint(Sketcher.Constraint("Tangent", 5, 1, 6, 1))
sketch3.addConstraint(Sketcher.Constraint("Tangent", 6, 2, 7, 2))
sketch3.addConstraint(Sketcher.Constraint("Tangent", 7, 1, 0, 1))
sketch3.addConstraint(Sketcher.Constraint("Tangent", 8, 2, 9, 2))
sketch3.addConstraint(Sketcher.Constraint("Tangent", 9, 1, 10, 1))
sketch3.addConstraint(Sketcher.Constraint("Tangent", 10, 2, 11, 2))
sketch3.addConstraint(Sketcher.Constraint("Tangent", 11, 1, 12, 1))
sketch3.addConstraint(Sketcher.Constraint("Tangent", 12, 2, 13, 2))
sketch3.addConstraint(Sketcher.Constraint("Tangent", 13, 1, 14, 1))
sketch3.addConstraint(Sketcher.Constraint("Tangent", 14, 2, 15, 2))
sketch3.addConstraint(Sketcher.Constraint("Tangent", 15, 1, 8, 1))
sketch3.addConstraint(Sketcher.Constraint("Tangent", 16, 2, 17, 2))
sketch3.addConstraint(Sketcher.Constraint("Tangent", 17, 1, 18, 1))
sketch3.addConstraint(Sketcher.Constraint("Tangent", 18, 2, 19, 2))
sketch3.addConstraint(Sketcher.Constraint("Tangent", 19, 1, 20, 1))
sketch3.addConstraint(Sketcher.Constraint("Tangent", 20, 2, 21, 2))
sketch3.addConstraint(Sketcher.Constraint("Tangent", 21, 1, 22, 1))
sketch3.addConstraint(Sketcher.Constraint("Tangent", 22, 2, 23, 2))
sketch3.addConstraint(Sketcher.Constraint("Tangent", 23, 1, 16, 1))
sketch3.addConstraint(Sketcher.Constraint("Horizontal", 8))
sketch3.addConstraint(Sketcher.Constraint("Vertical", 10))
sketch3.addConstraint(Sketcher.Constraint("Horizontal", 12))
sketch3.addConstraint(Sketcher.Constraint("Vertical", 14))
sketch3.addConstraint(Sketcher.Constraint("Equal", 1, 3))
sketch3.addConstraint(Sketcher.Constraint("Equal", 3, 5))
sketch3.addConstraint(Sketcher.Constraint("Equal", 5, 7))
sketch3.addConstraint(Sketcher.Constraint("Equal", 7, 9))
sketch3.addConstraint(Sketcher.Constraint("Equal", 9, 11))
sketch3.addConstraint(Sketcher.Constraint("Equal", 11, 13))
sketch3.addConstraint(Sketcher.Constraint("Equal", 13, 15))
sketch3.addConstraint(Sketcher.Constraint("Equal", 15, 17))
sketch3.addConstraint(Sketcher.Constraint("Equal", 17, 19))
sketch3.addConstraint(Sketcher.Constraint("Equal", 19, 21))
sketch3.addConstraint(Sketcher.Constraint("Equal", 21, 23))
sketch3.addConstraint(Sketcher.Constraint("Perpendicular", 0, 2))
sketch3.addConstraint(Sketcher.Constraint("Perpendicular", 2, 4))
sketch3.addConstraint(Sketcher.Constraint("Perpendicular", 4, 6))
sketch3.addConstraint(Sketcher.Constraint("Perpendicular", 16, 18))
sketch3.addConstraint(Sketcher.Constraint("Perpendicular", 18, 20))
sketch3.addConstraint(Sketcher.Constraint("Perpendicular", 20, 22))
sketch3.addConstraint(Sketcher.Constraint("Horizontal", 7, 3, 17, 3))
sketch3.addConstraint(Sketcher.Constraint("Horizontal", 5, 3, 19, 3))
sketch3.addConstraint(Sketcher.Constraint("Horizontal", 3, 3, 21, 3))
sketch3.addConstraint(Sketcher.Constraint("Horizontal", 7, 1, 16, 2))
sketch3.addConstraint(Sketcher.Constraint("Radius", 1, Q("2 mm")))
sketch3.addConstraint(Sketcher.Constraint("DistanceX", 8, 2, 8, 1, Q("21 mm")))
sketch3.addConstraint(Sketcher.Constraint("Angle", 0, Q("60 deg")))
sketch3.addConstraint(Sketcher.Constraint("Distance", 0, Q("21 mm")))
sketch3.addConstraint(Sketcher.Constraint("DistanceY", 10, 1, 10, 2, Q("8.7 mm")))
sketch3.addConstraint(Sketcher.Constraint("Distance", 2, Q("8.7 mm")))
sketch3.addConstraint(Sketcher.Constraint("DistanceY", -1, 1, 1, 3, Q("13192.192082 mm")))
sketch3.addConstraint(Sketcher.Constraint("DistanceX", -1, 1, 9, 3, Q("1311.260879 mm")))
sketch3.addConstraint(Sketcher.Constraint("DistanceX", -1, 1, 19, 3, Q("1515.694662 mm")))
sketch3.addConstraint(Sketcher.Constraint("DistanceX", 1, 3, 23, 3, Q("381.936408 mm")))
sketch3.addConstraint(Sketcher.Constraint("DistanceY", -1, 1, 9, 3, Q("12843.238916 mm")))
pocket2 = body.newObject("PartDesign::Pocket", "Pocket001")
pocket2.Profile = sketch3
pocket2.Length = 10
pocket2.Reversed = True

doc.recompute()
